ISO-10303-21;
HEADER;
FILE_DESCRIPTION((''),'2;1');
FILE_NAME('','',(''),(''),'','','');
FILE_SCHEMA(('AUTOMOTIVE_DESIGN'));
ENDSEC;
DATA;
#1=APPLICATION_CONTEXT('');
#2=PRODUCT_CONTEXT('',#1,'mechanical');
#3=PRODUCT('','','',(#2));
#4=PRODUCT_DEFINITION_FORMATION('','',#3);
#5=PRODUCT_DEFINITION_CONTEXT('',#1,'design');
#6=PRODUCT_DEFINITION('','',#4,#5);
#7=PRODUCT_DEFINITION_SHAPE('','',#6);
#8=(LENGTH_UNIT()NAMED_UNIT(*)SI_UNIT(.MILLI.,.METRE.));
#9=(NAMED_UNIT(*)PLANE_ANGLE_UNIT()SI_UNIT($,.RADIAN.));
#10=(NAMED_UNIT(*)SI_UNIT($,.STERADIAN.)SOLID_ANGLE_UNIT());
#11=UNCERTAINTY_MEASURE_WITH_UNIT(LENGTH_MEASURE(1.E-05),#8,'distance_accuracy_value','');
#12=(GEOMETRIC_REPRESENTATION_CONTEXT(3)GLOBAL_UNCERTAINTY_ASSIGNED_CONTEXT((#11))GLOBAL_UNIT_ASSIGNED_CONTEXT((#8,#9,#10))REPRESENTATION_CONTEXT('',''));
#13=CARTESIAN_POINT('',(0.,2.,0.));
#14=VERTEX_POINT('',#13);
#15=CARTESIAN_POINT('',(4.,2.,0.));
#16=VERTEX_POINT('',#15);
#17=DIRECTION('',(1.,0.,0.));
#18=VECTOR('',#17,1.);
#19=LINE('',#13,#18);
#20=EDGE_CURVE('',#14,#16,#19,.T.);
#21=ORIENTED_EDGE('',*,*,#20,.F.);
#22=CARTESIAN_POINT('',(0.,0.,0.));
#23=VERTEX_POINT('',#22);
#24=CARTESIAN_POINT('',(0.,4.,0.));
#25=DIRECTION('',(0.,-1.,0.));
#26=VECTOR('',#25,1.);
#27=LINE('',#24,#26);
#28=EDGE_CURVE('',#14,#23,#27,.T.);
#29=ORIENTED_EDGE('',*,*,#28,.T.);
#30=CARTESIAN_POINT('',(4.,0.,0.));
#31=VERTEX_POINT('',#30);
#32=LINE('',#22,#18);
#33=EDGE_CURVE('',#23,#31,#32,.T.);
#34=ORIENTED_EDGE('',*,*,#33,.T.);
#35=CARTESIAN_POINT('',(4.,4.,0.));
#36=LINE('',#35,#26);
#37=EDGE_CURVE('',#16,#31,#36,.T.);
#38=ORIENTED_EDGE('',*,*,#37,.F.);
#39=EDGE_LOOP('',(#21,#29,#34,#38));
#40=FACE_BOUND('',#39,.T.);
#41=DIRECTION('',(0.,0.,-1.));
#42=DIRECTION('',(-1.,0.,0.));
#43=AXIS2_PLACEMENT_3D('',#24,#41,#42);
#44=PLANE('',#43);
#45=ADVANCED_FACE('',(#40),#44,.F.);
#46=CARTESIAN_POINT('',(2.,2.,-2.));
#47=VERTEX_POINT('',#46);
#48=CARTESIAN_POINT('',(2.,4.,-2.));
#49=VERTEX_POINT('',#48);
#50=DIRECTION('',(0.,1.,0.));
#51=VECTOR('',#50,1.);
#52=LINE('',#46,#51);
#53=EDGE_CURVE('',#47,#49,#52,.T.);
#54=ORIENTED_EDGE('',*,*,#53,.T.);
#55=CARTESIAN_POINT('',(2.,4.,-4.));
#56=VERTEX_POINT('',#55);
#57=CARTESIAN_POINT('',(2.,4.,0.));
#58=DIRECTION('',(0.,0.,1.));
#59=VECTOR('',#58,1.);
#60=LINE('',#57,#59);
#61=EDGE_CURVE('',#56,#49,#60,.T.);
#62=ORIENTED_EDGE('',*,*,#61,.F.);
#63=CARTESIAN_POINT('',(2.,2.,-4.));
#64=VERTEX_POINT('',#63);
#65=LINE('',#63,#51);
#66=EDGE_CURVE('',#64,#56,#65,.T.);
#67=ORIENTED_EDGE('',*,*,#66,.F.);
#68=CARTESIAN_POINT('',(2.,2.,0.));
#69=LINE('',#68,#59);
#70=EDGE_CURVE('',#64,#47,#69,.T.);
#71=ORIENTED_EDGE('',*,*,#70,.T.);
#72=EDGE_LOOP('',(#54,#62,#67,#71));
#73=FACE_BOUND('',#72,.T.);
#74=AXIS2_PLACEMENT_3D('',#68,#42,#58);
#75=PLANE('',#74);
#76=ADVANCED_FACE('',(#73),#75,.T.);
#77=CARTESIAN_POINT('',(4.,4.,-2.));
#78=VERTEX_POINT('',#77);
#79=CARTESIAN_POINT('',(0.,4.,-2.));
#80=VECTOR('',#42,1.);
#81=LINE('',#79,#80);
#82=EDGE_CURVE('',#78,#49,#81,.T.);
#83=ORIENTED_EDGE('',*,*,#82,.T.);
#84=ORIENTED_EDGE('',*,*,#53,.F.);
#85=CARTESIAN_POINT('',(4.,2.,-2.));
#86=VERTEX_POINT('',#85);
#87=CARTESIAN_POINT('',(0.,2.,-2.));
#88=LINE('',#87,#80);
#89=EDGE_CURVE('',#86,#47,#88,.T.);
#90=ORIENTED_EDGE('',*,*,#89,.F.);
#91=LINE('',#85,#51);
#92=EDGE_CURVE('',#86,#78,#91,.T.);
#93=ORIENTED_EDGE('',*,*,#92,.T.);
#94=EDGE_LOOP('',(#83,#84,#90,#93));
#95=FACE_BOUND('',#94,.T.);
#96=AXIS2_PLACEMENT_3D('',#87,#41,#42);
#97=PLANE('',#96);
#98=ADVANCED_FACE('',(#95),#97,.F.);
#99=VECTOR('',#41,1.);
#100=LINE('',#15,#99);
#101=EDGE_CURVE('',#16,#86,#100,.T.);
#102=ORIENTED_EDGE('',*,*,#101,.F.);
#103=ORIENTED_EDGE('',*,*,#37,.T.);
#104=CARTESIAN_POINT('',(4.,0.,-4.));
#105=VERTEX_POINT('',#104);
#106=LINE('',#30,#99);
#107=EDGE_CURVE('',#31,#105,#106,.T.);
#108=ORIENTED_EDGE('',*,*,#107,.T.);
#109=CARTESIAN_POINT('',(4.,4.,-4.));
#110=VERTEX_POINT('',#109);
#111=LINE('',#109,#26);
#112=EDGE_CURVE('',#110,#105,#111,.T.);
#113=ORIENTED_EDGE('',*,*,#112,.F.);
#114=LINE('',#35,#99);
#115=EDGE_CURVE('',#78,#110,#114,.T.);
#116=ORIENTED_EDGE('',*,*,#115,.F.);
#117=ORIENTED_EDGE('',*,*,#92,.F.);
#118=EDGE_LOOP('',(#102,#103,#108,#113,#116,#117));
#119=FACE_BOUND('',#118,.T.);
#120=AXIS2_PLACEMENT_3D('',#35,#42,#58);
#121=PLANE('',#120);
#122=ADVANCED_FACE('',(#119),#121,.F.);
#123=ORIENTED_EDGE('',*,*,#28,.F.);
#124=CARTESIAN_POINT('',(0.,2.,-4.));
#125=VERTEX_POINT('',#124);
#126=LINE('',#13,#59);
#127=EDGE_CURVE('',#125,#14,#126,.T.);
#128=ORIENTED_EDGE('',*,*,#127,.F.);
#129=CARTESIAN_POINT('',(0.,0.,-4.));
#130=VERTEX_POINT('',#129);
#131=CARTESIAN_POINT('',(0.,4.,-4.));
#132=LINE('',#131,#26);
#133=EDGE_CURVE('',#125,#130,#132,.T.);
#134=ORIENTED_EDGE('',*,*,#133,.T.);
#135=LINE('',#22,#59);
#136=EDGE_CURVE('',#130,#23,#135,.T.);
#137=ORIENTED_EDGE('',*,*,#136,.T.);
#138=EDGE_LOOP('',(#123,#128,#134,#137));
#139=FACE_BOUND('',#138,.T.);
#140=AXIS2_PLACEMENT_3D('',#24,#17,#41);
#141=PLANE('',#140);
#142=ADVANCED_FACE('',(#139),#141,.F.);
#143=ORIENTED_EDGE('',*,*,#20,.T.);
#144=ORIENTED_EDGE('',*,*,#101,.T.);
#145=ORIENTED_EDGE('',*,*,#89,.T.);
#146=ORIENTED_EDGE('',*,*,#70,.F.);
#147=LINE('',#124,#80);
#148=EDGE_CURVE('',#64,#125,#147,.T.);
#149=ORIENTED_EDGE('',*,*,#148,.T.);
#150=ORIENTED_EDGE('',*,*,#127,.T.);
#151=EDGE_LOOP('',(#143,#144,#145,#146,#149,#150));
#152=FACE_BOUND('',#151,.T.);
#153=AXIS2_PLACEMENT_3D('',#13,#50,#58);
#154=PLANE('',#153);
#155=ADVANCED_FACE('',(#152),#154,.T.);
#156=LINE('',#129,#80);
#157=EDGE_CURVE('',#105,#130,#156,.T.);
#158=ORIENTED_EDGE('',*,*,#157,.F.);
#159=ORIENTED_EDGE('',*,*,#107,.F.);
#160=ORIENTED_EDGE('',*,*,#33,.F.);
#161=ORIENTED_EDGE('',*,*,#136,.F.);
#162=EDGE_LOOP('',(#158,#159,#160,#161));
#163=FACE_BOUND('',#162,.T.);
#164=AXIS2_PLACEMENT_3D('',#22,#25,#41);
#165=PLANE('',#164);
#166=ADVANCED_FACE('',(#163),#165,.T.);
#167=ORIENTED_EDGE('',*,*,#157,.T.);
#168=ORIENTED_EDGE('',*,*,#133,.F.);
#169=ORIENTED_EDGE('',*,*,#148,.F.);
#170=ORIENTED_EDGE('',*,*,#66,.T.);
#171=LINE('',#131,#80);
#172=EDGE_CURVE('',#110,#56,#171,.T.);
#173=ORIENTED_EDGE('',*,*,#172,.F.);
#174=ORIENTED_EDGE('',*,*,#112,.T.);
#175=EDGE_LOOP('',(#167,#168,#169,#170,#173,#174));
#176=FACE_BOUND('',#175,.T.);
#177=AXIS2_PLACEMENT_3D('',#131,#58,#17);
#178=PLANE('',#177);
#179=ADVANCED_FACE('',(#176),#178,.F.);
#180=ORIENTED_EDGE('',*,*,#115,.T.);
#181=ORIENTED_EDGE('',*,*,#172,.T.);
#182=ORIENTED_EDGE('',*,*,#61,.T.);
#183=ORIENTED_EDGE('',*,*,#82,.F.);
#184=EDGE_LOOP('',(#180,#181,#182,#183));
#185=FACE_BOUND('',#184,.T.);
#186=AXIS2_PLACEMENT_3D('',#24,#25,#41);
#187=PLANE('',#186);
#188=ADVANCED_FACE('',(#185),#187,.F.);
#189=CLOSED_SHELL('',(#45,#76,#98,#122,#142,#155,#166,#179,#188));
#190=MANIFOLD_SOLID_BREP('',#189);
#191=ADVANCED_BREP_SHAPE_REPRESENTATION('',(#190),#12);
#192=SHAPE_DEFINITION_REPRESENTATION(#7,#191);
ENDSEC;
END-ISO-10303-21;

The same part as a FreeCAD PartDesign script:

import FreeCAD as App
import Part
import Sketcher
from FreeCAD import Vector
Q = App.Units.Quantity


def add_polygon(sketch, points):
    """Adds a closed chain of lines whose ends are joined by coincident constraints."""
    first, n = sketch.GeometryCount, len(points)
    for a, b in zip(points, points[1:] + points[:1]):
        sketch.addGeometry(Part.LineSegment(App.Vector(*a, 0), App.Vector(*b, 0)), False)
    for i in range(n):
        sketch.addConstraint(Sketcher.Constraint("Coincident", first + i, 2, first + (i + 1) % n, 1))

doc = App.newDocument("Part")
body = doc.addObject("PartDesign::Body", "Body")

sketch1 = body.newObject("Sketcher::SketchObject", "Sketch")
sketch1.AttachmentSupport = (doc.getObject("XZ_Plane"), [""])
sketch1.MapMode = "FlatFace"
add_polygon(sketch1, [(0, -4), (0, 0), (4, 0), (4, -4)])
sketch1.addConstraint([
    Sketcher.Constraint("Vertical", 0),
    Sketcher.Constraint("Horizontal", 1),
    Sketcher.Constraint("Vertical", 2),
    Sketcher.Constraint("Horizontal", 3),
    Sketcher.Constraint("Coincident", 0, 2, -1, 1),
    Sketcher.Constraint("Equal", 3, 0),
    Sketcher.Constraint("DistanceX", 1, 1, 1, 2, Q("4 mm")),
])
pad1 = body.newObject("PartDesign::Pad", "Pad")
pad1.Profile = sketch1
pad1.Length = 4
pad1.Reversed = True

sketch2 = body.newObject("Sketcher::SketchObject", "Sketch001")
sketch2.AttachmentSupport = (doc.getObject("XZ_Plane"), [""])
sketch2.MapMode = "FlatFace"
sketch2.AttachmentOffset = App.Placement(Vector(0, 0, -4), App.Rotation())
add_polygon(sketch2, [(2, -2), (2, -4), (0, -4), (0, 0), (4, 0), (4, -2)])
sketch2.addConstraint([
    Sketcher.Constraint("Vertical", 0),
    Sketcher.Constraint("Horizontal", 1),
    Sketcher.Constraint("Vertical", 2),
    Sketcher.Constraint("Horizontal", 3),
    Sketcher.Constraint("Vertical", 4),
    Sketcher.Constraint("Horizontal", 5),
    Sketcher.Constraint("Coincident", 2, 2, -1, 1),
    Sketcher.Constraint("Equal", 1, 5),
    Sketcher.Constraint("Equal", 5, 0),
    Sketcher.Constraint("Equal", 3, 2),
    Sketcher.Constraint("DistanceX", 1, 2, 1, 1, Q("2 mm")),
])
pocket1 = body.newObject("PartDesign::Pocket", "Pocket")
pocket1.Profile = sketch2
pocket1.Length = 2
pocket1.Reversed = True

doc.recompute()
